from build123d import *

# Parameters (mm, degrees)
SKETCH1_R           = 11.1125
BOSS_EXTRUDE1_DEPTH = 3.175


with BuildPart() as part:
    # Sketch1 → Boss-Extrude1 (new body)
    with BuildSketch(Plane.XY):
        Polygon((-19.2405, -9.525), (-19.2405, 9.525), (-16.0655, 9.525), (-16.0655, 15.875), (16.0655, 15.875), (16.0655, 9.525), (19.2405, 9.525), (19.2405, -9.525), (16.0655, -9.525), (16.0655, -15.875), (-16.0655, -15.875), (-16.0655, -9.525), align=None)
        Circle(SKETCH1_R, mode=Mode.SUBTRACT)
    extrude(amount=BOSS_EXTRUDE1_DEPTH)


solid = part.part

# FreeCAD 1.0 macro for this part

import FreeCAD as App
import Part
import Sketcher

V = App.Vector
Q = App.Units.Quantity


def add_polygon(sketch, points):
    """Adds a closed chain of lines whose ends are joined by coincident constraints."""
    first, n = sketch.GeometryCount, len(points)
    for a, b in zip(points, points[1:] + points[:1]):
        sketch.addGeometry(Part.LineSegment(App.Vector(*a, 0), App.Vector(*b, 0)), False)
    for i in range(n):
        sketch.addConstraint(Sketcher.Constraint("Coincident", first + i, 2, first + (i + 1) % n, 1))

doc = App.newDocument("Part")
params = doc.addObject("Spreadsheet::Sheet", "Params")
for row, (alias, value) in enumerate([
    ("sketch1_diameter", "0.875 in"),
    ("sketch1_height", "0.75 in"),
    ("sketch1_width", "0.125 in"),
    ("sketch1_width2", "1.265 in"),
    ("pad1_length", "0.125 in"),
], start=1):
    params.set(f"A{row}", alias)
    params.set(f"B{row}", "=" + value)
    params.setAlias(f"B{row}", alias)

body = doc.addObject("PartDesign::Body", "Body")

# Sketch on XY plane
sketch1 = body.newObject("Sketcher::SketchObject", "Sketch")
sketch1.AttachmentSupport = (doc.getObject("XY_Plane"), [""])
sketch1.MapMode = "FlatFace"
add_polygon(sketch1, [(-19.2, 9.5), (-19.2, -9.5), (-16.1, -9.5), (-16.1, -15.9), (16.1, -15.9), (16.1, -9.5), (19.2, -9.5), (19.2, 9.5), (16.1, 9.5), (16.1, 15.9), (-16.1, 15.9), (-16.1, 9.5)])  # lines 0-11
sketch1.addGeometry(Part.Circle(V(0, 0, 0), V(0, 0, 1), 11.1), False)  # 12
sketch1.addConstraint(Sketcher.Constraint("Vertical", 0))
sketch1.addConstraint(Sketcher.Constraint("Horizontal", 1))
sketch1.addConstraint(Sketcher.Constraint("Vertical", 2))
sketch1.addConstraint(Sketcher.Constraint("Horizontal", 3))
sketch1.addConstraint(Sketcher.Constraint("Vertical", 4))
sketch1.addConstraint(Sketcher.Constraint("Horizontal", 5))
sketch1.addConstraint(Sketcher.Constraint("Vertical", 6))
sketch1.addConstraint(Sketcher.Constraint("Horizontal", 7))
sketch1.addConstraint(Sketcher.Constraint("Vertical", 8))
sketch1.addConstraint(Sketcher.Constraint("Horizontal", 9))
sketch1.addConstraint(Sketcher.Constraint("Vertical", 10))
sketch1.addConstraint(Sketcher.Constraint("Horizontal", 11))
sketch1.addConstraint(Sketcher.Constraint("Coincident", 12, 3, -1, 1))
sketch1.addConstraint(Sketcher.Constraint("Symmetric", 0, 2, 6, 2, -1, 1))
sketch1.addConstraint(Sketcher.Constraint("Symmetric", 2, 2, 8, 2, -1, 1))
sketch1.addConstraint(Sketcher.Constraint("Symmetric", 4, 2, 10, 2, -1, 1))
sketch1.addConstraint(Sketcher.Constraint("Symmetric", 1, 2, 4, 2, -2))
sketch1.addConstraint(Sketcher.Constraint("Diameter", 12, Q("0.875 in")))
sketch1.addConstraint(Sketcher.Constraint("DistanceY", 3, 2, 6, 2, Q("1 in")))
sketch1.addConstraint(Sketcher.Constraint("DistanceY", 0, 2, 0, 1, Q("0.75 in")))
sketch1.addConstraint(Sketcher.Constraint("DistanceX", 1, 1, 1, 2, Q("0.125 in")))
sketch1.addConstraint(Sketcher.Constraint("DistanceX", 3, 1, 3, 2, Q("1.265 in")))
sketch1.setExpression("Constraints[29]", "Params.sketch1_diameter")
sketch1.setExpression("Constraints[31]", "Params.sketch1_height")
sketch1.setExpression("Constraints[32]", "Params.sketch1_width")
sketch1.setExpression("Constraints[33]", "Params.sketch1_width2")
pad1 = body.newObject("PartDesign::Pad", "Pad")
pad1.Profile = sketch1
pad1.setExpression("Length", "Params.pad1_length")

doc.recompute()
